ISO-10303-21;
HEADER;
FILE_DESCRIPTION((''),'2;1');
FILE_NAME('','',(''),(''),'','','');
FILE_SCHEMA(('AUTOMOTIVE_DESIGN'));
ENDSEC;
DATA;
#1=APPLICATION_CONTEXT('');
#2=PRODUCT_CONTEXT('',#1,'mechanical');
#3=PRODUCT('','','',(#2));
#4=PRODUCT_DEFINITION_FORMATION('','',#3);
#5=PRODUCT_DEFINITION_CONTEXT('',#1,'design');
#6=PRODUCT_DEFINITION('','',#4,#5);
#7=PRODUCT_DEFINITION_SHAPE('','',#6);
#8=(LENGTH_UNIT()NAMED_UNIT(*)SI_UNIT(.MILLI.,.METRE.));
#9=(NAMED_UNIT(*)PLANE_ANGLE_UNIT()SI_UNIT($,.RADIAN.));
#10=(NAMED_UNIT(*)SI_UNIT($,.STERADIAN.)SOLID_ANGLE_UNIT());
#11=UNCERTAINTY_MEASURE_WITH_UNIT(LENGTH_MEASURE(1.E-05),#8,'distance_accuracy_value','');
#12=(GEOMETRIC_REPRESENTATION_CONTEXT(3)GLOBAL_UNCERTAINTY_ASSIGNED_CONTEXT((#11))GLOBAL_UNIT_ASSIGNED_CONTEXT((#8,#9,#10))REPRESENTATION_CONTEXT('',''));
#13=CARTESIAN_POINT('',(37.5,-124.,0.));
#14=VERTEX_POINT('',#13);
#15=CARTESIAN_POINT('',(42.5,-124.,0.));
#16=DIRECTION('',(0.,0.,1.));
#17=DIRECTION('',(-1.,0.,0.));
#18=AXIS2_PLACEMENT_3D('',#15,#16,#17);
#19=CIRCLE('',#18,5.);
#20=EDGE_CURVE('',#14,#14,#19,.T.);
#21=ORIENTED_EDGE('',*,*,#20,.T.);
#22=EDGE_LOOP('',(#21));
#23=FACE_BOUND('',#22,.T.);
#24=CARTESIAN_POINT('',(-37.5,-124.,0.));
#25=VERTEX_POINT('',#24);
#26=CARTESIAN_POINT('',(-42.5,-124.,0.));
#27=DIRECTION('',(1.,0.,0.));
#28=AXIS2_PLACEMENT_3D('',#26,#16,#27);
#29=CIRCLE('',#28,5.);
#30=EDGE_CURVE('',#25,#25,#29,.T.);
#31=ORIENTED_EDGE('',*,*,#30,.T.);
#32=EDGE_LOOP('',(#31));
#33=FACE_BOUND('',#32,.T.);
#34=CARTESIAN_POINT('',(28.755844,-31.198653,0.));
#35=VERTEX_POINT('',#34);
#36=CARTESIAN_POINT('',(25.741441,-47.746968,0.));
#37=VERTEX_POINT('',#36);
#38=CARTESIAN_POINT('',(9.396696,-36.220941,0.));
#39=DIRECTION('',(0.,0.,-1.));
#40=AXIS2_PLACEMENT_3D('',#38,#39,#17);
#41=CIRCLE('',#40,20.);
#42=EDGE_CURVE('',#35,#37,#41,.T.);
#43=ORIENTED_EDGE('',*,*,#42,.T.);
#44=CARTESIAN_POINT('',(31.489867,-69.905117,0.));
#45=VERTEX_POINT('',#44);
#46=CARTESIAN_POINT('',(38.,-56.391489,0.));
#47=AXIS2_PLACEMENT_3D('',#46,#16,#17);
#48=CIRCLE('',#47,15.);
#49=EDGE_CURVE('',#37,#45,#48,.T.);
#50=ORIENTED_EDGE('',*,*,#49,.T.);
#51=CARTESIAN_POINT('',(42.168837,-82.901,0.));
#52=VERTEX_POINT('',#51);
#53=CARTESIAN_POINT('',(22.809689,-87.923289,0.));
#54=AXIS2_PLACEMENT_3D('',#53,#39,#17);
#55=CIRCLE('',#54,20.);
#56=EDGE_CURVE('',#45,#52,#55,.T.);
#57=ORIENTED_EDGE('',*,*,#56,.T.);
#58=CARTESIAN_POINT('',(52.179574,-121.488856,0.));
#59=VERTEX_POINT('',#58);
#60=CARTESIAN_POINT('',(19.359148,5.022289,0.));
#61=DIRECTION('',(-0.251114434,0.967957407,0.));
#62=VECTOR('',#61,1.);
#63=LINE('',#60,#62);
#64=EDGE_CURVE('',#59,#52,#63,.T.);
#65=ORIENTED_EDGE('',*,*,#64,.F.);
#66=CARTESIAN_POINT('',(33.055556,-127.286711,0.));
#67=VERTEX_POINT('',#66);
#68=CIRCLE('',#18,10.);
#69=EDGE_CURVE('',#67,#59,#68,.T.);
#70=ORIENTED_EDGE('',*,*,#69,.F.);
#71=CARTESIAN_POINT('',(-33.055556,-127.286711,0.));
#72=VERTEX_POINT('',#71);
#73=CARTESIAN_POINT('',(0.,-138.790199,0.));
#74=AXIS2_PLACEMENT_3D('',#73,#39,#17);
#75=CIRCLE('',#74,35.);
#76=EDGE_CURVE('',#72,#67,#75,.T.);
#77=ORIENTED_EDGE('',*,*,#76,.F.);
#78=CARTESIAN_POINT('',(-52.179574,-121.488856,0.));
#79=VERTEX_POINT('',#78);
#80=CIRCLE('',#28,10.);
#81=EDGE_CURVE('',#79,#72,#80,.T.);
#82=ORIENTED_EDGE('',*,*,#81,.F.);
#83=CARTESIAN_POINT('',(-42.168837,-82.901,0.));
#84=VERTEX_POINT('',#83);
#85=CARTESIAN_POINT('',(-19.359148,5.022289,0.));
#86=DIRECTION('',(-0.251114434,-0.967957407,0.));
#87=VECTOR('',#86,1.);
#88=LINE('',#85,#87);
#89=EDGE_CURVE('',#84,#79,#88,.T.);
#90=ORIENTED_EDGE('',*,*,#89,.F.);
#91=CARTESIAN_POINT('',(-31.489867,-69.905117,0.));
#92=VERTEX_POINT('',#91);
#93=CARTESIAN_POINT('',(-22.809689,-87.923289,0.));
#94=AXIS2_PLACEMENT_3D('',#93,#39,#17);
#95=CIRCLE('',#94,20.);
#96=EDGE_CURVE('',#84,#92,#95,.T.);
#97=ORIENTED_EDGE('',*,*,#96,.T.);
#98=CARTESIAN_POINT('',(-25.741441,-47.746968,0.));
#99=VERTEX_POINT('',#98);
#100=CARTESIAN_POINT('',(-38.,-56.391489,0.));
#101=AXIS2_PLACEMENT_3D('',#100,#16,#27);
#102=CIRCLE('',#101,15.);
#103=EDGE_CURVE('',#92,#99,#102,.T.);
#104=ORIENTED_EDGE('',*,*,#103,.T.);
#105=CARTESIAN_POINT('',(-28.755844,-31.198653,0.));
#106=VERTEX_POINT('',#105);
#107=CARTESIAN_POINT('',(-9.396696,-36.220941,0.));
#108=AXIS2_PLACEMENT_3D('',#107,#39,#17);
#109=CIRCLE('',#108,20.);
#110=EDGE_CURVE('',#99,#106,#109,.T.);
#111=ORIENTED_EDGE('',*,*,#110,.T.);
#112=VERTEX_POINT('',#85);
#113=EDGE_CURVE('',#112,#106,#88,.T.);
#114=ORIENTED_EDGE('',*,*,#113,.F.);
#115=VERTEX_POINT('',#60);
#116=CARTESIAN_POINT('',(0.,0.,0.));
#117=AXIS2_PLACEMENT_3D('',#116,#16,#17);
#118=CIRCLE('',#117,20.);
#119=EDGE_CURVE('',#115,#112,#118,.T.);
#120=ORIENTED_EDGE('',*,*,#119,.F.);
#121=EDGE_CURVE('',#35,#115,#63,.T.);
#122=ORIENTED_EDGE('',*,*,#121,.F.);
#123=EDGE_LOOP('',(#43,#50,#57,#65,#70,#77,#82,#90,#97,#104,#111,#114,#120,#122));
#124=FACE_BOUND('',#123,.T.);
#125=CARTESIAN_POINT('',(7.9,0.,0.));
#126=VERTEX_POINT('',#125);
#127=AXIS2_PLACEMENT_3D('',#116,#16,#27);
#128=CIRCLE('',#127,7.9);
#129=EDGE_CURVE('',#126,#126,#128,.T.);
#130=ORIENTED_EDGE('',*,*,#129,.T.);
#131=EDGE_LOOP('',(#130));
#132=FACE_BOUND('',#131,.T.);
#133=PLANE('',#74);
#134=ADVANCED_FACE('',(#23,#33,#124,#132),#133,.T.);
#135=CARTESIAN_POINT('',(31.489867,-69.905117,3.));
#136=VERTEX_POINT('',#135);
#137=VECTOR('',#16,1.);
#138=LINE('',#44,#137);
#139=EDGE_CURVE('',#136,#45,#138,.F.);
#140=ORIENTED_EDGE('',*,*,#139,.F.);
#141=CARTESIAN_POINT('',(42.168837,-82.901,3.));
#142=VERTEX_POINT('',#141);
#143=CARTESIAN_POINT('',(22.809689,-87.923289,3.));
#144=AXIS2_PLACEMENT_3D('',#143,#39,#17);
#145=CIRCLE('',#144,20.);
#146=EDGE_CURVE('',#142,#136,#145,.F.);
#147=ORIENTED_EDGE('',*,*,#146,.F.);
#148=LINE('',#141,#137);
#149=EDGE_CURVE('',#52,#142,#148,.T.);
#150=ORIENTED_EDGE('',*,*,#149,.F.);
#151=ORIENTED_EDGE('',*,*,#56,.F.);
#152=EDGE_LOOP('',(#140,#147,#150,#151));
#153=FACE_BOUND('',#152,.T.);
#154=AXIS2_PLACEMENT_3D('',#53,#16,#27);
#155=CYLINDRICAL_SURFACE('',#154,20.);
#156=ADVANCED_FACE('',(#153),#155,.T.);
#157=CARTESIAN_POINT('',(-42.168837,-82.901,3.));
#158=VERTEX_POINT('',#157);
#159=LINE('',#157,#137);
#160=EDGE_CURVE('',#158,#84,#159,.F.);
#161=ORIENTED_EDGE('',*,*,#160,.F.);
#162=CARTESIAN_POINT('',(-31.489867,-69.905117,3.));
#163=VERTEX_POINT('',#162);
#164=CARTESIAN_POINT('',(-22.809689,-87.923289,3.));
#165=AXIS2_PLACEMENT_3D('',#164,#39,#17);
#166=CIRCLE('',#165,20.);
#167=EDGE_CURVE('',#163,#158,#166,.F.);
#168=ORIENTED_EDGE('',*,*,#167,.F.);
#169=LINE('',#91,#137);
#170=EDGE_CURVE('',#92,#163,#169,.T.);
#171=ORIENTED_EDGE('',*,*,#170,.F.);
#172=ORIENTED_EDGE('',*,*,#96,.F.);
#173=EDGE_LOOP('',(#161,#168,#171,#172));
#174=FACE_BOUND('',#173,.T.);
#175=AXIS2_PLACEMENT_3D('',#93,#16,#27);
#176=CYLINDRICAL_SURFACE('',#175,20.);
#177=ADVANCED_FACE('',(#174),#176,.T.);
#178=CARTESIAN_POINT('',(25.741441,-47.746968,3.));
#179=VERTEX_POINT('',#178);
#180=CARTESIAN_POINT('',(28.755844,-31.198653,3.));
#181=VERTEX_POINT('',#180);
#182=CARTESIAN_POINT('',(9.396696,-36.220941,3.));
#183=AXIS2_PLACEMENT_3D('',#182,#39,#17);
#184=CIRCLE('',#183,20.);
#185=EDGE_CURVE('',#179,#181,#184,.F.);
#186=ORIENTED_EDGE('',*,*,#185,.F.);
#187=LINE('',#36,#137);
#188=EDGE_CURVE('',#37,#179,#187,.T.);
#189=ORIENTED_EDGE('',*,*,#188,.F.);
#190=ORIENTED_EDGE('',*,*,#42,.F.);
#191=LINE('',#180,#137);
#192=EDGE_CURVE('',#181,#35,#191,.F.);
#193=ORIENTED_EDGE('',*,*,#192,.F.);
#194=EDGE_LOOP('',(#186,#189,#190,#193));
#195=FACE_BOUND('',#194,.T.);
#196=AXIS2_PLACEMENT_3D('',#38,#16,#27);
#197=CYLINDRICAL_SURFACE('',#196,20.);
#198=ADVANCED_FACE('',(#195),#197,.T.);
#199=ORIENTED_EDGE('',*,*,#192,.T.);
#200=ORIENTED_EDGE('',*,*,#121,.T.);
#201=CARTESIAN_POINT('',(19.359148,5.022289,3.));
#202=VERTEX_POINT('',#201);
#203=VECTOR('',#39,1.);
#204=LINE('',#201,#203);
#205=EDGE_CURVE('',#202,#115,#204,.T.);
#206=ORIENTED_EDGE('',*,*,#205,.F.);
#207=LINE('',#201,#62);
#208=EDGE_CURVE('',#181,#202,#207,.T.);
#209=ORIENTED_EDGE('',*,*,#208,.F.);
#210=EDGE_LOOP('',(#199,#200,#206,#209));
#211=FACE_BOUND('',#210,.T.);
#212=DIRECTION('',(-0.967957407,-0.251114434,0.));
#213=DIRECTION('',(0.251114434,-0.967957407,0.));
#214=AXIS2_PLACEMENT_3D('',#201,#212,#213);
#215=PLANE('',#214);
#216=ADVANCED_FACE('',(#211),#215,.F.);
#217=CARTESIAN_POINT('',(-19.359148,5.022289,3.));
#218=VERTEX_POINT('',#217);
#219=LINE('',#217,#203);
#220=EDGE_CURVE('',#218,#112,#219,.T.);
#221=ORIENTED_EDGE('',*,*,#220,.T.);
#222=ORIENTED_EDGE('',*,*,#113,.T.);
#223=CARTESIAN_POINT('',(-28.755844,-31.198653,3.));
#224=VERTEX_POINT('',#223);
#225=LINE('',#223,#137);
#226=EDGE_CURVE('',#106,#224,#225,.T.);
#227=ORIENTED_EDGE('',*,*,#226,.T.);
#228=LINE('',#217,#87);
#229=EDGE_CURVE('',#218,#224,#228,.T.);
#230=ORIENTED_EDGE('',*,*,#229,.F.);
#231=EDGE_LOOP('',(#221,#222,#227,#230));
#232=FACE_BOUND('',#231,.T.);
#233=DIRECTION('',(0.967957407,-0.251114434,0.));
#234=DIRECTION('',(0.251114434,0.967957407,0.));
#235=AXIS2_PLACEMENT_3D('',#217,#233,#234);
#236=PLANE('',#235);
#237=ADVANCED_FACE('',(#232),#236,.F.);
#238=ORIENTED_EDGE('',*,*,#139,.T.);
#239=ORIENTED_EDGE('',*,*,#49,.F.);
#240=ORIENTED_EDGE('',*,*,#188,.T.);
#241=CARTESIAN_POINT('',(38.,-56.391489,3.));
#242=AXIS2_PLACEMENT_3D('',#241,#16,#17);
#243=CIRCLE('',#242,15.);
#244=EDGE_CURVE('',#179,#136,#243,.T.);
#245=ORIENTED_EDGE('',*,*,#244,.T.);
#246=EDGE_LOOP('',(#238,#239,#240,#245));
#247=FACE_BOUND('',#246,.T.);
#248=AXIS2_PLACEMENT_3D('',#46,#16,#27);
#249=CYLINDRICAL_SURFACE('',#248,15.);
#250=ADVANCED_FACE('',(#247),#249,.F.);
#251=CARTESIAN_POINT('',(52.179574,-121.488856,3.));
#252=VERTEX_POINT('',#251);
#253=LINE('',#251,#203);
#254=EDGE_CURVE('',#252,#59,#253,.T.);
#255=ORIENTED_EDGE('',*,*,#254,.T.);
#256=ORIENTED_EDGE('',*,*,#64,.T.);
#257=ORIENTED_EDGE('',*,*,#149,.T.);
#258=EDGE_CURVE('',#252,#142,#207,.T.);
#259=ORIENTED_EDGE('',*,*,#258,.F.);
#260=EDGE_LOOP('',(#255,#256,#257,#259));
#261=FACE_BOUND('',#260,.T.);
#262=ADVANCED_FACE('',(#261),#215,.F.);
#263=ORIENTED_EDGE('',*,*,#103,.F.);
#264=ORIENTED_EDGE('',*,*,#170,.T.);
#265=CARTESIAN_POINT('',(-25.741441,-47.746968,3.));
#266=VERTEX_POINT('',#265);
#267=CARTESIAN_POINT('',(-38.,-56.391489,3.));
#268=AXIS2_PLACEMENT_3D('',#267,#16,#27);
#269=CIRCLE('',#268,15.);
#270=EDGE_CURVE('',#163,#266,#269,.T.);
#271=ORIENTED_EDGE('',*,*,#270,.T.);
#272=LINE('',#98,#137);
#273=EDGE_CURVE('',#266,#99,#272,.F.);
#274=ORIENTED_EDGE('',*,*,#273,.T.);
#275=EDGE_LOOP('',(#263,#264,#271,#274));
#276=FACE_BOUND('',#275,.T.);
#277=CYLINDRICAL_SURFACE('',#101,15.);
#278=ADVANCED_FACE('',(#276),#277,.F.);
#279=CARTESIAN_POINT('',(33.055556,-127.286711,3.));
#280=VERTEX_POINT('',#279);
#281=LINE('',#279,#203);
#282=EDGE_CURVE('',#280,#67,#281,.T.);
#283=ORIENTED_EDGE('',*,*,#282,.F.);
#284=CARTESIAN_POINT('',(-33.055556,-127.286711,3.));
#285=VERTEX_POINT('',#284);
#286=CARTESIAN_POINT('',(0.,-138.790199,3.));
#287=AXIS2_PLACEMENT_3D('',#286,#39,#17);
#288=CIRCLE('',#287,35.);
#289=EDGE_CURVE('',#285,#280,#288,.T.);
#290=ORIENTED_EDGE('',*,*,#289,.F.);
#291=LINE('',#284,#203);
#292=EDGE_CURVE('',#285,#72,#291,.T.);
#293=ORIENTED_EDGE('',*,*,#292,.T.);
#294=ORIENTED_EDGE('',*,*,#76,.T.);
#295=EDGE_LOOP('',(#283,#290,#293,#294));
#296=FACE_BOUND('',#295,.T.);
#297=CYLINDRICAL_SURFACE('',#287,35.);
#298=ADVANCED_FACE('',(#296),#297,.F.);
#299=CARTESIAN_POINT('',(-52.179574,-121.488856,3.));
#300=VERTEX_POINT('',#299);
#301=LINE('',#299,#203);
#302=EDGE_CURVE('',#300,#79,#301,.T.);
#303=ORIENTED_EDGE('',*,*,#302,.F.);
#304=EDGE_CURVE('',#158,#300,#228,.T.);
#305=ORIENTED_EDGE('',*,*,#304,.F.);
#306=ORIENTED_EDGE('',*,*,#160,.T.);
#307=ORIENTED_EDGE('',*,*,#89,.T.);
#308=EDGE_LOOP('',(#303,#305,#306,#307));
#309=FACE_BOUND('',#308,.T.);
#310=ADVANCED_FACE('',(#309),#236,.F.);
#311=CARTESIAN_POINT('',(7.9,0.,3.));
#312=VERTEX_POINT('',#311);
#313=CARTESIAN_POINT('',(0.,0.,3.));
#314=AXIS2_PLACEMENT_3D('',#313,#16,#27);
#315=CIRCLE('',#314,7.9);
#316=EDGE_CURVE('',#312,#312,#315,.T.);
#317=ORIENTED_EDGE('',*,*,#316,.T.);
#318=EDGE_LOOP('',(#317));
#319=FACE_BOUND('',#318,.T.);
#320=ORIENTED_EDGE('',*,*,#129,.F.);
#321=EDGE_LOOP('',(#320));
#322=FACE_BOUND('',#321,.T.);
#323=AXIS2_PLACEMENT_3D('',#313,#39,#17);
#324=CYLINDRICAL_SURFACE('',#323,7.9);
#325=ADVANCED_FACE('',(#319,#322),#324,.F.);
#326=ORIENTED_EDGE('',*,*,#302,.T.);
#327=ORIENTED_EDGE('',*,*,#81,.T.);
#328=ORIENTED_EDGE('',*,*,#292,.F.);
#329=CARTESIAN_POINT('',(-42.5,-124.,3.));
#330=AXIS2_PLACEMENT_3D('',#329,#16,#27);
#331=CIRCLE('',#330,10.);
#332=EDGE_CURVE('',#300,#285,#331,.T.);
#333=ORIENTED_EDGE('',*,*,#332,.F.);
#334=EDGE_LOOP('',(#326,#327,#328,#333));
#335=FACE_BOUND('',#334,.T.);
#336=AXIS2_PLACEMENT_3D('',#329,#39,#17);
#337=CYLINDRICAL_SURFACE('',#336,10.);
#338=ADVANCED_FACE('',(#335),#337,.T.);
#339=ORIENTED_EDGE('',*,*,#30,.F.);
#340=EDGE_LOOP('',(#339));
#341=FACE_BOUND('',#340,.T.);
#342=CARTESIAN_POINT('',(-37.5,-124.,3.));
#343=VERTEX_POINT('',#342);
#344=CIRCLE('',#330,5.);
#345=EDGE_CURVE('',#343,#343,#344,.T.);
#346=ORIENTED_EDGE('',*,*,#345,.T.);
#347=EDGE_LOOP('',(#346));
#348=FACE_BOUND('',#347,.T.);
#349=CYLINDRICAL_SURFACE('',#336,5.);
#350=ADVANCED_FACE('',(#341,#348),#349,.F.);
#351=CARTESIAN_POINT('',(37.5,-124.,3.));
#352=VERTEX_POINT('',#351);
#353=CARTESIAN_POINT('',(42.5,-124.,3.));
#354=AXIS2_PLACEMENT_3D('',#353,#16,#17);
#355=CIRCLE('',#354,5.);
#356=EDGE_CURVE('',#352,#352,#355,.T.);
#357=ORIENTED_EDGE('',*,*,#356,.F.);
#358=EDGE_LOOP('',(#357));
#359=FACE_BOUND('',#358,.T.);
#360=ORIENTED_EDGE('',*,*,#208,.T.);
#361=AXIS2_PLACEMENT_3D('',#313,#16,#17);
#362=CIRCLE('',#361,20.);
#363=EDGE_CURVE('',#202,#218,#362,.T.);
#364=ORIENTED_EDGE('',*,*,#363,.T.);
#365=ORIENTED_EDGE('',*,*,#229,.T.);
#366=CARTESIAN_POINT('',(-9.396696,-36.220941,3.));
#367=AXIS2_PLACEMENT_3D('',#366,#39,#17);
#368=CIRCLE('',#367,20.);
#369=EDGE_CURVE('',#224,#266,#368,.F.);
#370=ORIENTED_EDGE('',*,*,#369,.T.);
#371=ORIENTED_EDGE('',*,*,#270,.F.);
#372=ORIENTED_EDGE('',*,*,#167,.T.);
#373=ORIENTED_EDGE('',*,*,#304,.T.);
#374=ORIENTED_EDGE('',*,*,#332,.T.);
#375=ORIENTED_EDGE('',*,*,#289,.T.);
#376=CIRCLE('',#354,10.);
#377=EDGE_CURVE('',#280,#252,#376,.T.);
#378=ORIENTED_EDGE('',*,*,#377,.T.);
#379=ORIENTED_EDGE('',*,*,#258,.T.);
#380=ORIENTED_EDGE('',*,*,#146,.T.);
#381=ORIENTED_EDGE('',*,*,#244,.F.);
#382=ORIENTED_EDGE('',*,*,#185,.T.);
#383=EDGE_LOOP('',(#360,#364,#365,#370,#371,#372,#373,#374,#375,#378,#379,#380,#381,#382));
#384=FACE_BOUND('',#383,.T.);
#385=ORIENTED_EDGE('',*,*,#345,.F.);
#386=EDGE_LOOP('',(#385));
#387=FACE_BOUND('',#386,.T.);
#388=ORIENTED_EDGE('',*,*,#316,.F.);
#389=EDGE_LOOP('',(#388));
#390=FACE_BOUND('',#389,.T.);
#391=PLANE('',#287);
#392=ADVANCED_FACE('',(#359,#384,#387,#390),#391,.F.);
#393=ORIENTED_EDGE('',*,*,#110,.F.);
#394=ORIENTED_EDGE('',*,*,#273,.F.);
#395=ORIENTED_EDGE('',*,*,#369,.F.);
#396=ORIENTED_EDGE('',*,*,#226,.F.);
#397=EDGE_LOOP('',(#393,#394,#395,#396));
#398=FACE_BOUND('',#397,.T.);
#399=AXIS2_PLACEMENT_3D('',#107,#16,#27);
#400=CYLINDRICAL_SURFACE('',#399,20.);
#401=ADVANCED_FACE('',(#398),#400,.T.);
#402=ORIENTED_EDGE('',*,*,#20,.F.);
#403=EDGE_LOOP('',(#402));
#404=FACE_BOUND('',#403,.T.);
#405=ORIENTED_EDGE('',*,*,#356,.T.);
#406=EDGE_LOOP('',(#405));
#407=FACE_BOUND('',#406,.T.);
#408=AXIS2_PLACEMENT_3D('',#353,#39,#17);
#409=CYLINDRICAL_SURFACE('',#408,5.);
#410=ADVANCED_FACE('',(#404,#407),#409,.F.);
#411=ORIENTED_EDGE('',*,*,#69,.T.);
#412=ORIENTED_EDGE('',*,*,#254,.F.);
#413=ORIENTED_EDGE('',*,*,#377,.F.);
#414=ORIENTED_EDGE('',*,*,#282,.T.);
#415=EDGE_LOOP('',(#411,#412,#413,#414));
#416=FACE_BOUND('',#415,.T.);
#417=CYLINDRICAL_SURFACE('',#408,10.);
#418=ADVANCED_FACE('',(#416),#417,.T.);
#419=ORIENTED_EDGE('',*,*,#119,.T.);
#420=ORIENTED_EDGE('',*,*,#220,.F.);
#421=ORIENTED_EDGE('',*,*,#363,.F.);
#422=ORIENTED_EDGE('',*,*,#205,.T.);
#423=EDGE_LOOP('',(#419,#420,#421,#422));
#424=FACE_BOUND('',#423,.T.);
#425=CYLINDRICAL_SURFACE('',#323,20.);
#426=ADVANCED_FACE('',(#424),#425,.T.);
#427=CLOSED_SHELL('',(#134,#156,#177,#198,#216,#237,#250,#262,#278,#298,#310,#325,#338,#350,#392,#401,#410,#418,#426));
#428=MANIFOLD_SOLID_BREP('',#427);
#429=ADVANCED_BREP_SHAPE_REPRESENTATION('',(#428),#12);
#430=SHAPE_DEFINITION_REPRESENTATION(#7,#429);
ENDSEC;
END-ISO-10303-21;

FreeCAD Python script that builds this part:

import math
import FreeCAD as App
import Part
import Sketcher
Q = App.Units.Quantity


def edges_at(feature, points):
    """Names of the edges that pass closest to the given points."""
    edges = feature.Shape.Edges
    near = lambda p: min(range(len(edges)), key=lambda i: edges[i].distToShape(Part.Vertex(*p))[0])
    return sorted({f"Edge{near(p) + 1}" for p in points})

doc = App.newDocument("Part")
params = doc.addObject("Spreadsheet::Sheet", "Params")
for row, (alias, value) in enumerate([
    ("sketch1_diameter", "10 mm"),
    ("sketch1_radius", "10 mm"),
    ("sketch1_radius2", "35 mm"),
    ("sketch1_radius3", "20 mm"),
    ("sketch1_diameter2", "15.8 mm"),
    ("pad1_length", "3 mm"),
    ("sketch2_diameter", "30 mm"),
    ("fillet_radius", "20 mm"),
], start=1):
    params.set(f"A{row}", alias)
    params.set(f"B{row}", "=" + value)
    params.setAlias(f"B{row}", alias)

body = doc.addObject("PartDesign::Body", "Body")

# Sketch on XY plane
sketch1 = body.newObject("Sketcher::SketchObject", "Sketch")
sketch1.AttachmentSupport = (doc.getObject("XY_Plane"), [""])
sketch1.MapMode = "FlatFace"
sketch1.addGeometry([
    Part.LineSegment(App.Vector(-19.359148, 5.022289, 0), App.Vector(-52.179574, -121.488856, 0)),  # 0
    Part.ArcOfCircle(Part.Circle(App.Vector(-42.5, -124, 0), App.Vector(0, 0, 1), 10), math.radians(165.456532), math.radians(340.811864)),  # 1
    Part.ArcOfCircle(Part.Circle(App.Vector(0, -138.790199, 0), App.Vector(0, 0, 1), 35), math.radians(19.188136), math.radians(160.811864)),  # 2
    Part.ArcOfCircle(Part.Circle(App.Vector(42.5, -124, 0), App.Vector(0, 0, 1), 10), math.radians(-160.811864), math.radians(14.543468)),  # 3
    Part.LineSegment(App.Vector(52.179574, -121.488856, 0), App.Vector(19.359148, 5.022289, 0)),  # 4
    Part.ArcOfCircle(Part.Circle(App.Vector(0, 0, 0), App.Vector(0, 0, 1), 20), math.radians(14.543468), math.radians(165.456532)),  # 5
    Part.Circle(App.Vector(-42.5, -124, 0), App.Vector(0, 0, 1), 5),  # 6
    Part.Circle(App.Vector(42.5, -124, 0), App.Vector(0, 0, 1), 5),  # 7
    Part.Circle(App.Vector(0, 0, 0), App.Vector(0, 0, 1), 7.9),  # 8
], False)
sketch1.addConstraint([
    Sketcher.Constraint("Tangent", 0, 2, 1, 1),
    Sketcher.Constraint("Tangent", 1, 2, 2, 2),
    Sketcher.Constraint("Tangent", 2, 1, 3, 1),
    Sketcher.Constraint("Tangent", 3, 2, 4, 1),
    Sketcher.Constraint("Tangent", 4, 2, 5, 1),
    Sketcher.Constraint("Tangent", 5, 2, 0, 1),
    Sketcher.Constraint("Coincident", 5, 3, -1, 1),
    Sketcher.Constraint("Coincident", 8, 3, -1, 1),
    Sketcher.Constraint("Coincident", 6, 3, 1, 3),
    Sketcher.Constraint("Coincident", 7, 3, 3, 3),
    Sketcher.Constraint("Equal", 1, 3),
    Sketcher.Constraint("Equal", 6, 7),
    Sketcher.Constraint("Symmetric", 1, 3, 3, 3, -2),
    Sketcher.Constraint("Diameter", 6, Q("10 mm")),
    Sketcher.Constraint("Radius", 1, Q("10 mm")),
    Sketcher.Constraint("Radius", 2, Q("35 mm")),
    Sketcher.Constraint("Radius", 5, Q("20 mm")),
    Sketcher.Constraint("Diameter", 8, Q("15.8 mm")),
    Sketcher.Constraint("DistanceY", 1, 3, -1, 1, Q("124 mm")),
    Sketcher.Constraint("DistanceX", 1, 3, 3, 3, Q("85 mm")),
])
sketch1.setExpression("Constraints[13]", "Params.sketch1_diameter")
sketch1.setExpression("Constraints[14]", "Params.sketch1_radius")
sketch1.setExpression("Constraints[15]", "Params.sketch1_radius2")
sketch1.setExpression("Constraints[16]", "Params.sketch1_radius3")
sketch1.setExpression("Constraints[17]", "Params.sketch1_diameter2")
pad1 = body.newObject("PartDesign::Pad", "Pad")
pad1.Profile = sketch1
pad1.setExpression("Length", "Params.pad1_length")

# Sketch on XY plane
sketch2 = body.newObject("Sketcher::SketchObject", "Sketch001")
sketch2.AttachmentSupport = (doc.getObject("XY_Plane"), [""])
sketch2.MapMode = "FlatFace"
sketch2.AttachmentOffset = App.Placement(App.Vector(0, 0, 3), App.Rotation())
sketch2.addGeometry([
    Part.Circle(App.Vector(-38, -56.391489, 0), App.Vector(0, 0, 1), 15),
    Part.Circle(App.Vector(38, -56.391489, 0), App.Vector(0, 0, 1), 15),
], False)
sketch2.addConstraint([
    Sketcher.Constraint("Equal", 0, 1),
    Sketcher.Constraint("Symmetric", 0, 3, 1, 3, -2),
    Sketcher.Constraint("Diameter", 0, Q("30 mm")),
    Sketcher.Constraint("DistanceX", 0, 3, -1, 1, Q("38 mm")),
    Sketcher.Constraint("DistanceY", 0, 3, -1, 1, Q("56.391489 mm")),
])
sketch2.setExpression("Constraints[2]", "Params.sketch2_diameter")
pocket1 = body.newObject("PartDesign::Pocket", "Pocket")
pocket1.Profile = sketch2
pocket1.Type = "ThroughAll"
doc.recompute()

fillet = body.newObject("PartDesign::Fillet", "Fillet")
fillet.Base = (pocket1, edges_at(pocket1, [
    (-39.171, -71.346, 1.5),
    (-31.754, -42.754, 1.5),
    (31.754, -42.754, 1.5),
    (39.171, -71.346, 1.5),
]))
fillet.setExpression("Radius", "Params.fillet_radius")

doc.recompute()
